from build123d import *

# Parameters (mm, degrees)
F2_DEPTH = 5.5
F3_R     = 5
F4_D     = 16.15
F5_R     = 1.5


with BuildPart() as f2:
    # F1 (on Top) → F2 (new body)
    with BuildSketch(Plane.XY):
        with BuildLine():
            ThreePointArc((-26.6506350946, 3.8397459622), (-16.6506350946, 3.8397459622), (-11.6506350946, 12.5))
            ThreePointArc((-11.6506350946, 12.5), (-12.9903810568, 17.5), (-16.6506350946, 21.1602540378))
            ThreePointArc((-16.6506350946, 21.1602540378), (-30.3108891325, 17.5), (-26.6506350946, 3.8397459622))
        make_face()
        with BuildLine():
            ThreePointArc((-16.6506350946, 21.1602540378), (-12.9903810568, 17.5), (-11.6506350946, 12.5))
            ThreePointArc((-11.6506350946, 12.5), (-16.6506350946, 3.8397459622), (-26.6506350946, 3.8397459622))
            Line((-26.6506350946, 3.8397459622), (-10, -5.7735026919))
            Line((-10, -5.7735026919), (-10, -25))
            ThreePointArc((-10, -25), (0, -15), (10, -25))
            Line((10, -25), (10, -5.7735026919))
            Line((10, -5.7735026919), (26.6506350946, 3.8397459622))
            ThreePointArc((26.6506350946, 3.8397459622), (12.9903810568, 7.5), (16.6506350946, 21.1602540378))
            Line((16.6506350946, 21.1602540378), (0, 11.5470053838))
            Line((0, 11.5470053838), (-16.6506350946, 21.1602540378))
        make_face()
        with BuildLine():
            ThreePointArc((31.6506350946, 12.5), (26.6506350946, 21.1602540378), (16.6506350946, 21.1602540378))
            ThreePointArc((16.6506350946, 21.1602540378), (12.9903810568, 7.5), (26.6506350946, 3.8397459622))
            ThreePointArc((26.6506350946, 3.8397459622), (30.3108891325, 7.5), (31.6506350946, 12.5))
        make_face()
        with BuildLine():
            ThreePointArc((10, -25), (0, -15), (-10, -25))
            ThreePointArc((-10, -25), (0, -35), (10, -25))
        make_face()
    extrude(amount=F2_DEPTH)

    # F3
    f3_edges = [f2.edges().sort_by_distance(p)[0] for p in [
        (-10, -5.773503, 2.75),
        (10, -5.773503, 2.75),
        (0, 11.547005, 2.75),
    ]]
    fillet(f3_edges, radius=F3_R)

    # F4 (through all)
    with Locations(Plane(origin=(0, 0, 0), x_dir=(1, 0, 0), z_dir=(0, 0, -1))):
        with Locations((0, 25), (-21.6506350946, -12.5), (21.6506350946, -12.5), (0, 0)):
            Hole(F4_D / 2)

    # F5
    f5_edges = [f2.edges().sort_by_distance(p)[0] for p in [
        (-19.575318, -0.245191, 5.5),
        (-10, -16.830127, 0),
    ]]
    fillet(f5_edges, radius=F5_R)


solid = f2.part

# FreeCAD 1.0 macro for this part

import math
import FreeCAD as App
import Part
import Sketcher
from FreeCAD import Vector


def edges_at(feature, points):
    """Names of the edges that pass closest to the given points."""
    edges = feature.Shape.Edges
    near = lambda p: min(range(len(edges)), key=lambda i: edges[i].distToShape(Part.Vertex(*p))[0])
    return sorted({f"Edge{near(p) + 1}" for p in points})

doc = App.newDocument("Part")
params = doc.addObject("Spreadsheet::Sheet", "Params")
for row, (alias, value) in enumerate([
    ("sketch1_radius", "10 mm"),
    ("pad1_length", "5.5 mm"),
    ("fillet_radius", "5 mm"),
    ("sketch2_diameter", "16.15 mm"),
    ("hole_diameter", "16.15 mm"),
    ("fillet2_radius", "1.5 mm"),
], start=1):
    params.set(f"A{row}", alias)
    params.set(f"B{row}", "=" + value)
    params.setAlias(f"B{row}", alias)

body = doc.addObject("PartDesign::Body", "Body")

sketch1 = body.newObject("Sketcher::SketchObject", "Sketch")
sketch1.AttachmentSupport = (doc.getObject("XY_Plane"), [""])
sketch1.MapMode = "FlatFace"
sketch1.addGeometry([
    Part.ArcOfCircle(Part.Circle(Vector(-21.650635, 12.5, 0), Vector(0, 0, 1), 10), math.radians(60), math.radians(240)),
    Part.LineSegment(Vector(-26.650635, 3.839746, 0), Vector(-10, -5.773503, 0)),
    Part.LineSegment(Vector(-10, -5.773503, 0), Vector(-10, -25, 0)),
    Part.ArcOfCircle(Part.Circle(Vector(0, -25, 0), Vector(0, 0, 1), 10), math.radians(180), math.radians(360)),
    Part.LineSegment(Vector(10, -25, 0), Vector(10, -5.773503, 0)),
    Part.LineSegment(Vector(10, -5.773503, 0), Vector(26.650635, 3.839746, 0)),
    Part.ArcOfCircle(Part.Circle(Vector(21.650635, 12.5, 0), Vector(0, 0, 1), 10), math.radians(-60), math.radians(0)),
    Part.ArcOfCircle(Part.Circle(Vector(21.650635, 12.5, 0), Vector(0, 0, 1), 10), math.radians(0), math.radians(120)),
    Part.LineSegment(Vector(16.650635, 21.160254, 0), Vector(0, 11.547005, 0)),
    Part.LineSegment(Vector(0, 11.547005, 0), Vector(-16.650635, 21.160254, 0)),
], False)
sketch1.addConstraint([
    Sketcher.Constraint("Tangent", 0, 2, 1, 1),
    Sketcher.Constraint("Coincident", 1, 2, 2, 1),
    Sketcher.Constraint("Tangent", 2, 2, 3, 1),
    Sketcher.Constraint("Tangent", 3, 2, 4, 1),
    Sketcher.Constraint("Coincident", 4, 2, 5, 1),
    Sketcher.Constraint("Tangent", 5, 2, 6, 1),
    Sketcher.Constraint("Tangent", 6, 2, 7, 1),
    Sketcher.Constraint("Tangent", 7, 2, 8, 1),
    Sketcher.Constraint("Coincident", 8, 2, 9, 1),
    Sketcher.Constraint("Tangent", 9, 2, 0, 1),
    Sketcher.Constraint("Vertical", 2),
    Sketcher.Constraint("Vertical", 4),
    Sketcher.Constraint("Equal", 0, 3),
    Sketcher.Constraint("Equal", 3, 6),
    Sketcher.Constraint("Equal", 6, 7),
    Sketcher.Constraint("Symmetric", 0, 3, 6, 3, -2),
    Sketcher.Constraint("Symmetric", 1, 2, 4, 2, -2),
    Sketcher.Constraint("PointOnObject", 8, 2, -2),
    Sketcher.Constraint("Parallel", 5, 8),
    Sketcher.Constraint("Horizontal", 7, 3, 6, 2),
    Sketcher.Constraint("Equal", 5, 8),
    Sketcher.Constraint("Radius", 0, 10.0),
    Sketcher.Constraint("DistanceY", 3, 3, -1, 1, 25.0),
    Sketcher.Constraint("DistanceY", -1, 1, 0, 3, 12.5),
    Sketcher.Constraint("DistanceY", 2, 2, 2, 1, 19.226497),
])
sketch1.setExpression("Constraints[21]", "Params.sketch1_radius")
pad1 = body.newObject("PartDesign::Pad", "Pad")
pad1.Profile = sketch1
pad1.setExpression("Length", "Params.pad1_length")
doc.recompute()

fillet = body.newObject("PartDesign::Fillet", "Fillet")
fillet.Base = (pad1, edges_at(pad1, [(-10, -5.774, 2.75), (10, -5.774, 2.75), (0, 11.547, 2.75)]))
fillet.setExpression("Radius", "Params.fillet_radius")

sketch2 = body.newObject("Sketcher::SketchObject", "Sketch001")
sketch2.AttachmentSupport = (doc.getObject("XY_Plane"), [""])
sketch2.MapMode = "FlatFace"
sketch2.addGeometry([
    Part.Circle(Vector(0, -25, 0), Vector(0, 0, 1), 8.075),
    Part.Circle(Vector(-21.650635, 12.5, 0), Vector(0, 0, 1), 8.075),
    Part.Circle(Vector(21.650635, 12.5, 0), Vector(0, 0, 1), 8.075),
    Part.Circle(Vector(0, 0, 0), Vector(0, 0, 1), 8.075),
], False)
sketch2.addConstraint([
    Sketcher.Constraint("Coincident", 3, 3, -1, 1),
    Sketcher.Constraint("Equal", 0, 1),
    Sketcher.Constraint("Equal", 1, 2),
    Sketcher.Constraint("Equal", 2, 3),
    Sketcher.Constraint("Symmetric", 1, 3, 2, 3, -2),
    Sketcher.Constraint("PointOnObject", 0, 3, -2),
    Sketcher.Constraint("Diameter", 0, 16.15),
    Sketcher.Constraint("DistanceY", 0, 3, -1, 1, 25.0),
    Sketcher.Constraint("DistanceY", -1, 1, 1, 3, 12.5),
    Sketcher.Constraint("DistanceX", 1, 3, 2, 3, 43.30127),
])
sketch2.setExpression("Constraints[6]", "Params.sketch2_diameter")
doc.recompute()
hole = body.newObject("PartDesign::Hole", "Hole")
hole.Profile = sketch2
hole.ThreadType = "None"
hole.setExpression("Diameter", "Params.hole_diameter")
hole.DepthType = "ThroughAll"
hole.Reversed = True
doc.recompute()

fillet2 = body.newObject("PartDesign::Fillet", "Fillet001")
fillet2.Base = (hole, edges_at(hole, [(-19.575, -0.245, 5.5), (-10, -16.83, 0)]))
fillet2.setExpression("Radius", "Params.fillet2_radius")

doc.recompute()
